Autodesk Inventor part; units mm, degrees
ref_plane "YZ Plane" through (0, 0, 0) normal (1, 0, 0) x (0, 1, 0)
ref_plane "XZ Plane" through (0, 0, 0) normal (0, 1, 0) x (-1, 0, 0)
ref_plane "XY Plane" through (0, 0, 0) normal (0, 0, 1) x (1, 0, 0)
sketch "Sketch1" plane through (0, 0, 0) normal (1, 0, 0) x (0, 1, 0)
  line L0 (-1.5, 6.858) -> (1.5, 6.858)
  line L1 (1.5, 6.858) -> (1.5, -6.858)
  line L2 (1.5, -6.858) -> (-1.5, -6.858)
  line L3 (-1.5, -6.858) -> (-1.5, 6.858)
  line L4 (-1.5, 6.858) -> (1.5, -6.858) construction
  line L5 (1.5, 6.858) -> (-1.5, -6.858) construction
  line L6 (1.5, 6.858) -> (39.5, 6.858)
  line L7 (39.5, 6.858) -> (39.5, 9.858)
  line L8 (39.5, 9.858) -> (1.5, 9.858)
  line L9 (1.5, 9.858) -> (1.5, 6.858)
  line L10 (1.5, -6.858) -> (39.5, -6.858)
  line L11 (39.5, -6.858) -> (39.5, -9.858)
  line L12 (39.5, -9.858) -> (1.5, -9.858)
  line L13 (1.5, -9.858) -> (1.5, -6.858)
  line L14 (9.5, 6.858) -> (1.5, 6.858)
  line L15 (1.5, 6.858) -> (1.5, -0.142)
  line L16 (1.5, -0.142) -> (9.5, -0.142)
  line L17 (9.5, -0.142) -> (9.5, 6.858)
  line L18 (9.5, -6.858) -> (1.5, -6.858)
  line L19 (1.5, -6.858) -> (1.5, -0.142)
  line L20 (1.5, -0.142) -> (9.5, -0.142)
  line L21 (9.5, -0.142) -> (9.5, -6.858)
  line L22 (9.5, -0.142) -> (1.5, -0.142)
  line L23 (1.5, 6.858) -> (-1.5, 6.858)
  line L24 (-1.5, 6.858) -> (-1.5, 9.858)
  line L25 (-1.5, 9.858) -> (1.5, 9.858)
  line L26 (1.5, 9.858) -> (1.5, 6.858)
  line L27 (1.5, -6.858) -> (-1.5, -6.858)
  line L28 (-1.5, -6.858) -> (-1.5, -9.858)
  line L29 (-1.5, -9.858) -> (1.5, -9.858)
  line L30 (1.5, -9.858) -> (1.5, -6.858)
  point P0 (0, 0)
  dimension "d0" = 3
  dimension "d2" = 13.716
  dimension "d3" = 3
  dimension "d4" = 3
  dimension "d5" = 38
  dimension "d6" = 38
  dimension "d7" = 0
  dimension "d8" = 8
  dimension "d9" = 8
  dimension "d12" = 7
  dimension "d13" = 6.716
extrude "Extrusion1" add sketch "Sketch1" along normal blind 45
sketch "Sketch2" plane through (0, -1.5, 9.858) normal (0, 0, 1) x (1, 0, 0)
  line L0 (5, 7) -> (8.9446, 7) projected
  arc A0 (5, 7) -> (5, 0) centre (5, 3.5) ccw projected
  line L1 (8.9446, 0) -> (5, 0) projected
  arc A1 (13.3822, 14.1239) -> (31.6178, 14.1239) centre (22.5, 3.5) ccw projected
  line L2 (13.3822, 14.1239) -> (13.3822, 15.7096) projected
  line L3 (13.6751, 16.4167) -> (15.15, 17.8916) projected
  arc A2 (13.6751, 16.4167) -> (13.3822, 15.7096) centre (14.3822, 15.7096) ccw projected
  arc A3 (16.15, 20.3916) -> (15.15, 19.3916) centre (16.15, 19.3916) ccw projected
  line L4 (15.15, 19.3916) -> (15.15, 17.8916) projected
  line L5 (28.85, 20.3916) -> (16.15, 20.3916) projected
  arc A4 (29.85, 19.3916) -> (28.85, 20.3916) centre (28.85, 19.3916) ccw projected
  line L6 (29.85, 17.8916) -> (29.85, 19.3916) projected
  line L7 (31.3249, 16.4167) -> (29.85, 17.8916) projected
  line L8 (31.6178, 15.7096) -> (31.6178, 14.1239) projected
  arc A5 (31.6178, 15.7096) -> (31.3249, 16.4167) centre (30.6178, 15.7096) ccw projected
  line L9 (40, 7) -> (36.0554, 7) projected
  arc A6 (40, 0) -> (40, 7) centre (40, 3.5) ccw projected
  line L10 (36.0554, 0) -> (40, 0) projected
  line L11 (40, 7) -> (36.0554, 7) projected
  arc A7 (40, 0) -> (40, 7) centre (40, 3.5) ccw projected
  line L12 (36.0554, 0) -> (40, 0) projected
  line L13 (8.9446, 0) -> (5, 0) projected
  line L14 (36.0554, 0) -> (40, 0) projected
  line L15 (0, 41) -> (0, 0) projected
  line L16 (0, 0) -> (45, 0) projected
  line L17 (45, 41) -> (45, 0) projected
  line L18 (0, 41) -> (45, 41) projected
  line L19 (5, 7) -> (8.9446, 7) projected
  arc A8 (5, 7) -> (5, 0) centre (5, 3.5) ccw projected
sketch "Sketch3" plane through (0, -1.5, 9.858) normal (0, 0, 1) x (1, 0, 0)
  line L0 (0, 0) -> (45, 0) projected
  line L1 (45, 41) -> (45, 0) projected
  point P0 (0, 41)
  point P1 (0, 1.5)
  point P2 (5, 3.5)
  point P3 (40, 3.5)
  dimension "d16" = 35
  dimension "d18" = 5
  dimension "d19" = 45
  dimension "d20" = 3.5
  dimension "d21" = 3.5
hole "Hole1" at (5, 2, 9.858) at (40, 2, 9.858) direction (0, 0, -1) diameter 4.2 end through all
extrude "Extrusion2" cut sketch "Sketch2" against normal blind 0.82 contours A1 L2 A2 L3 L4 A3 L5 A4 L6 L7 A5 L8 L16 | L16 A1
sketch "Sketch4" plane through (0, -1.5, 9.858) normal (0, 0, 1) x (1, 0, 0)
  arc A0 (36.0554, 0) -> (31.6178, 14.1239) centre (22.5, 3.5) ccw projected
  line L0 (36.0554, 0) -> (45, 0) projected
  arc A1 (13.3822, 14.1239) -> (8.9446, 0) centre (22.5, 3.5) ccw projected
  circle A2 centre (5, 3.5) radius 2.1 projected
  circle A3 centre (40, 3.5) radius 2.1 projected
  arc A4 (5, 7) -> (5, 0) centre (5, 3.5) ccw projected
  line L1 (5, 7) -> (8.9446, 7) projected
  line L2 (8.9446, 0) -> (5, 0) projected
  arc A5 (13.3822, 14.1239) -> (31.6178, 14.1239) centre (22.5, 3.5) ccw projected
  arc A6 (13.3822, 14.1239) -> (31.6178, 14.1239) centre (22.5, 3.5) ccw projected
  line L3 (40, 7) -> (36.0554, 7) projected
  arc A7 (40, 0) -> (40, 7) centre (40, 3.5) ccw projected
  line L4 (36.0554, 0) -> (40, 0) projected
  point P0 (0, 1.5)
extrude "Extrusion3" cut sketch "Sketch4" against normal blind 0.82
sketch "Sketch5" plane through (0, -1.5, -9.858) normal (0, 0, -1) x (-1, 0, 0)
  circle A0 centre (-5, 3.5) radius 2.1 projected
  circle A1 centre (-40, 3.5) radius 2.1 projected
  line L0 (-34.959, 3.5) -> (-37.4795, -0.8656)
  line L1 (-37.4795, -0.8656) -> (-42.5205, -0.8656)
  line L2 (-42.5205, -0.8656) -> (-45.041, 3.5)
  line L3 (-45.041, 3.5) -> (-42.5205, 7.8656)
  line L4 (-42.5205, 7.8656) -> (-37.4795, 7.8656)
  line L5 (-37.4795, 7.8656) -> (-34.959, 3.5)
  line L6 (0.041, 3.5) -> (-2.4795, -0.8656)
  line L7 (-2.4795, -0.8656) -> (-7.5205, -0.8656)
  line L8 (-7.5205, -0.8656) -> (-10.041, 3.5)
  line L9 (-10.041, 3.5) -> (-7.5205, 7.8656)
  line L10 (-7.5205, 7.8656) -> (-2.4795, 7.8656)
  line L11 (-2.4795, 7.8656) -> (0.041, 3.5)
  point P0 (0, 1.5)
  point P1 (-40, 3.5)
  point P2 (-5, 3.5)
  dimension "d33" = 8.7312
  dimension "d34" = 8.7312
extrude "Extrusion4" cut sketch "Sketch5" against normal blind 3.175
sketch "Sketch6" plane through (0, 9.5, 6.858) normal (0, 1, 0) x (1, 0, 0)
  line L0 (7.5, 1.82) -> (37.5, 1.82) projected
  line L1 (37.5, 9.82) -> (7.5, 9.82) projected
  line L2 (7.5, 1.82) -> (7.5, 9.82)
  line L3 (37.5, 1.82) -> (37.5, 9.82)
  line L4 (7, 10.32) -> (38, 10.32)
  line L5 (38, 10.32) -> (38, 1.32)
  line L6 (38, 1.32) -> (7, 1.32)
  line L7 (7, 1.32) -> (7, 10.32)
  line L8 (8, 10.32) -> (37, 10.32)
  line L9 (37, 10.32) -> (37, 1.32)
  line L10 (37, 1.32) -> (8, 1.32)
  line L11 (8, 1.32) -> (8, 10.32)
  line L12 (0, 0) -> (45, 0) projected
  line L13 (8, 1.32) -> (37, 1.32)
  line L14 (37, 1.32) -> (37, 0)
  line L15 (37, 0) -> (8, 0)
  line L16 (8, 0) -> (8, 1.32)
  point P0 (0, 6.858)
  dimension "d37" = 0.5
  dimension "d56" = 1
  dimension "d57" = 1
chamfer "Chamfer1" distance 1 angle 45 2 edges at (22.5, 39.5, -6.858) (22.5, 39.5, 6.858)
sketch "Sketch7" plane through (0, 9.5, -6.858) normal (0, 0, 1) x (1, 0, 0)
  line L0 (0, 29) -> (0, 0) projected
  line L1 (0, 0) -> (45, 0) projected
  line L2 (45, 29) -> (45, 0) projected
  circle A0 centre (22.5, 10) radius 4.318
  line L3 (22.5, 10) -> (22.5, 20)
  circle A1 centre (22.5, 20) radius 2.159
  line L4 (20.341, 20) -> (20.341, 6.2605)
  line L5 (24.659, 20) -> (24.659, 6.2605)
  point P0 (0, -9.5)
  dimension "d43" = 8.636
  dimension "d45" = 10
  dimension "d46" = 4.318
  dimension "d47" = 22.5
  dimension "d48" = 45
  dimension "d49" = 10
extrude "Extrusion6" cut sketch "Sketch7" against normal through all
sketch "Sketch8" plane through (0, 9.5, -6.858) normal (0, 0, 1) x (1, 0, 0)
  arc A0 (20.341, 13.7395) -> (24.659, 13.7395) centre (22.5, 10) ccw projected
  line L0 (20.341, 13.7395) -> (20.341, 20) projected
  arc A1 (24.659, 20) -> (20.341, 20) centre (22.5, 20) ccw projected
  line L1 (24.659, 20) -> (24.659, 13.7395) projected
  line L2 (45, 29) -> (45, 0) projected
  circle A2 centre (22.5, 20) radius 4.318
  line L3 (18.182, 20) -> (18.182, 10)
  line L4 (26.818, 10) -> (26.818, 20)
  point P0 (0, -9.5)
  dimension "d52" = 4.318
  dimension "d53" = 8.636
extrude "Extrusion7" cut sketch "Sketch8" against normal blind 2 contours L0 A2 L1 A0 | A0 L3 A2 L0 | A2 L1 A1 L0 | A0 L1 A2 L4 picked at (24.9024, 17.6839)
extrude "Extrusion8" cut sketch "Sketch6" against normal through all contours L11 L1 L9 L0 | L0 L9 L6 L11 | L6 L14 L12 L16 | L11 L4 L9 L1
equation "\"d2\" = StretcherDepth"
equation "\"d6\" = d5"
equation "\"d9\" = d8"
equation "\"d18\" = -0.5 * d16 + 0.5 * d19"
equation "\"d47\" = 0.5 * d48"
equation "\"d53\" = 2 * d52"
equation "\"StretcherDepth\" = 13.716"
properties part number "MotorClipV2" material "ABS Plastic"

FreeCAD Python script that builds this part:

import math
import FreeCAD as App
import Part
import Sketcher
from FreeCAD import Vector
Q = App.Units.Quantity


def edges_at(feature, points):
    """Names of the edges that pass closest to the given points."""
    edges = feature.Shape.Edges
    near = lambda p: min(range(len(edges)), key=lambda i: edges[i].distToShape(Part.Vertex(*p))[0])
    return sorted({f"Edge{near(p) + 1}" for p in points})


def add_polygon(sketch, points):
    """Adds a closed chain of lines whose ends are joined by coincident constraints."""
    first, n = sketch.GeometryCount, len(points)
    for a, b in zip(points, points[1:] + points[:1]):
        sketch.addGeometry(Part.LineSegment(App.Vector(*a, 0), App.Vector(*b, 0)), False)
    for i in range(n):
        sketch.addConstraint(Sketcher.Constraint("Coincident", first + i, 2, first + (i + 1) % n, 1))

doc = App.newDocument("Part")
body = doc.addObject("PartDesign::Body", "Body")

# Sketch on YZ plane
sketch1 = body.newObject("Sketcher::SketchObject", "Sketch")
sketch1.AttachmentSupport = (doc.getObject("YZ_Plane"), [""])
sketch1.MapMode = "FlatFace"
add_polygon(sketch1, [(-1.5, 9.858), (-1.5, -9.858), (39.5, -9.858), (39.5, -6.858), (9.5, -6.858), (9.5, 6.858), (39.5, 6.858), (39.5, 9.858)])  # lines 0-7
sketch1.addConstraint(Sketcher.Constraint("Vertical", 0))
sketch1.addConstraint(Sketcher.Constraint("Horizontal", 1))
sketch1.addConstraint(Sketcher.Constraint("Vertical", 2))
sketch1.addConstraint(Sketcher.Constraint("Horizontal", 3))
sketch1.addConstraint(Sketcher.Constraint("Vertical", 4))
sketch1.addConstraint(Sketcher.Constraint("Horizontal", 5))
sketch1.addConstraint(Sketcher.Constraint("Vertical", 6))
sketch1.addConstraint(Sketcher.Constraint("Horizontal", 7))
sketch1.addConstraint(Sketcher.Constraint("Symmetric", 2, 2, 5, 2, -1))
sketch1.addConstraint(Sketcher.Constraint("Equal", 2, 6))
sketch1.addConstraint(Sketcher.Constraint("DistanceY", 2, 1, 2, 2, 3.0))
sketch1.addConstraint(Sketcher.Constraint("DistanceX", 1, 1, 1, 2, 41.0))
sketch1.addConstraint(Sketcher.Constraint("DistanceX", 3, 2, 3, 1, 30.0))
sketch1.addConstraint(Sketcher.Constraint("DistanceY", 4, 1, 4, 2, 13.716))
sketch1.addConstraint(Sketcher.Constraint("DistanceX", 0, 2, -1, 1, 1.5))
pad1 = body.newObject("PartDesign::Pad", "Pad")
pad1.Profile = sketch1
pad1.Length = 45

# Sketch on XY plane
sketch2 = body.newObject("Sketcher::SketchObject", "Sketch001")
sketch2.AttachmentSupport = (doc.getObject("XY_Plane"), [""])
sketch2.MapMode = "FlatFace"
sketch2.AttachmentOffset = App.Placement(Vector(0, 0, 9.858), App.Rotation())
sketch2.addGeometry(Part.Circle(Vector(5, 2, 0), Vector(0, 0, 1), 2.1), False)
sketch2.addGeometry(Part.Circle(Vector(40, 2, 0), Vector(0, 0, 1), 2.1), False)
sketch2.addConstraint(Sketcher.Constraint("Equal", 0, 1))
sketch2.addConstraint(Sketcher.Constraint("Horizontal", 0, 3, 1, 3))
sketch2.addConstraint(Sketcher.Constraint("Diameter", 0, 4.2))
sketch2.addConstraint(Sketcher.Constraint("DistanceX", -1, 1, 0, 3, 5.0))
sketch2.addConstraint(Sketcher.Constraint("DistanceY", -1, 1, 0, 3, 2.0))
sketch2.addConstraint(Sketcher.Constraint("DistanceX", -1, 1, 1, 3, 40.0))
doc.recompute()
hole = body.newObject("PartDesign::Hole", "Hole")
hole.Profile = sketch2
hole.ThreadType = "None"
hole.Diameter = 4.2
hole.DepthType = "ThroughAll"

# Sketch on XY plane
sketch3 = body.newObject("Sketcher::SketchObject", "Sketch002")
sketch3.AttachmentSupport = (doc.getObject("XY_Plane"), [""])
sketch3.MapMode = "FlatFace"
sketch3.AttachmentOffset = App.Placement(Vector(0, 0, 9.858), App.Rotation())
sketch3.addGeometry(Part.ArcOfCircle(Part.Circle(Vector(22.5, 2, 0), Vector(0, 0, 1), 14.000055), math.radians(130.637339), math.radians(409.362661)), False)
sketch3.addGeometry(Part.LineSegment(Vector(31.6178, 12.6239, 0), Vector(31.6178, 14.2096, 0)), False)
sketch3.addGeometry(Part.ArcOfCircle(Part.Circle(Vector(30.6178, 14.2096, 0), Vector(0, 0, 1), 1), math.radians(0), math.radians(45)), False)
sketch3.addGeometry(Part.LineSegment(Vector(31.3249, 14.9167, 0), Vector(29.85, 16.3916, 0)), False)
sketch3.addGeometry(Part.LineSegment(Vector(29.85, 16.3916, 0), Vector(29.85, 17.8916, 0)), False)
sketch3.addGeometry(Part.ArcOfCircle(Part.Circle(Vector(28.85, 17.8916, 0), Vector(0, 0, 1), 1), math.radians(0), math.radians(90)), False)
sketch3.addGeometry(Part.LineSegment(Vector(28.85, 18.8916, 0), Vector(16.15, 18.8916, 0)), False)
sketch3.addGeometry(Part.ArcOfCircle(Part.Circle(Vector(16.15, 17.8916, 0), Vector(0, 0, 1), 1), math.radians(90), math.radians(180)), False)
sketch3.addGeometry(Part.LineSegment(Vector(15.15, 17.8916, 0), Vector(15.15, 16.3916, 0)), False)
sketch3.addGeometry(Part.LineSegment(Vector(15.15, 16.3916, 0), Vector(13.6751, 14.9167, 0)), False)
sketch3.addGeometry(Part.ArcOfCircle(Part.Circle(Vector(14.3822, 14.2096, 0), Vector(0, 0, 1), 0.99999), math.radians(135), math.radians(180)), False)
sketch3.addGeometry(Part.LineSegment(Vector(13.3822, 14.2096, 0), Vector(13.3822, 12.6239, 0)), False)
sketch3.addConstraint(Sketcher.Constraint("Coincident", 0, 2, 1, 1))
sketch3.addConstraint(Sketcher.Constraint("Tangent", 1, 2, 2, 1))
sketch3.addConstraint(Sketcher.Constraint("Tangent", 2, 2, 3, 1))
sketch3.addConstraint(Sketcher.Constraint("Coincident", 3, 2, 4, 1))
sketch3.addConstraint(Sketcher.Constraint("Tangent", 4, 2, 5, 1))
sketch3.addConstraint(Sketcher.Constraint("Tangent", 5, 2, 6, 1))
sketch3.addConstraint(Sketcher.Constraint("Tangent", 6, 2, 7, 1))
sketch3.addConstraint(Sketcher.Constraint("Tangent", 7, 2, 8, 1))
sketch3.addConstraint(Sketcher.Constraint("Coincident", 8, 2, 9, 1))
sketch3.addConstraint(Sketcher.Constraint("Tangent", 9, 2, 10, 1))
sketch3.addConstraint(Sketcher.Constraint("Tangent", 10, 2, 11, 1))
sketch3.addConstraint(Sketcher.Constraint("Coincident", 11, 2, 0, 1))
sketch3.addConstraint(Sketcher.Constraint("Vertical", 1))
sketch3.addConstraint(Sketcher.Constraint("Vertical", 4))
sketch3.addConstraint(Sketcher.Constraint("Horizontal", 6))
sketch3.addConstraint(Sketcher.Constraint("Vertical", 8))
sketch3.addConstraint(Sketcher.Constraint("Vertical", 11))
sketch3.addConstraint(Sketcher.Constraint("Equal", 2, 5))
sketch3.addConstraint(Sketcher.Constraint("Equal", 5, 7))
sketch3.addConstraint(Sketcher.Constraint("Equal", 7, 10))
sketch3.addConstraint(Sketcher.Constraint("Perpendicular", 3, 9))
sketch3.addConstraint(Sketcher.Constraint("Horizontal", 2, 3, 10, 3))
sketch3.addConstraint(Sketcher.Constraint("Horizontal", 3, 2, 8, 2))
sketch3.addConstraint(Sketcher.Constraint("Horizontal", 2, 2, 9, 2))
sketch3.addConstraint(Sketcher.Constraint("Horizontal", 0, 2, 11, 2))
sketch3.addConstraint(Sketcher.Constraint("Radius", 0, 14.0))
sketch3.addConstraint(Sketcher.Constraint("Radius", 2, 1.0))
sketch3.addConstraint(Sketcher.Constraint("DistanceX", 6, 2, 6, 1, 12.7))
sketch3.addConstraint(Sketcher.Constraint("DistanceY", 4, 1, 4, 2, 1.5))
sketch3.addConstraint(Sketcher.Constraint("DistanceY", -1, 1, 0, 3, 2.0))
sketch3.addConstraint(Sketcher.Constraint("DistanceX", -1, 1, 0, 3, 22.5))
sketch3.addConstraint(Sketcher.Constraint("DistanceY", 1, 1, 1, 2, 1.5857))
sketch3.addConstraint(Sketcher.Constraint("DistanceY", -1, 1, 0, 2, 12.624))
pocket1 = body.newObject("PartDesign::Pocket", "Pocket")
pocket1.Profile = sketch3
pocket1.Length = 0.82

# Sketch on XY plane
sketch4 = body.newObject("Sketcher::SketchObject", "Sketch003")
sketch4.AttachmentSupport = (doc.getObject("XY_Plane"), [""])
sketch4.MapMode = "FlatFace"
sketch4.AttachmentOffset = App.Placement(Vector(0, 0, 9.858), App.Rotation())
sketch4.addGeometry(Part.ArcOfCircle(Part.Circle(Vector(22.5, 2, 0), Vector(0, 0, 1), 14.000055), math.radians(-14.477555), math.radians(14.477555)), False)
sketch4.addGeometry(Part.LineSegment(Vector(36.0554, -1.5, 0), Vector(40, -1.5, 0)), False)
sketch4.addGeometry(Part.ArcOfCircle(Part.Circle(Vector(40, 2, 0), Vector(0, 0, 1), 3.5), math.radians(-90), math.radians(90)), False)
sketch4.addGeometry(Part.LineSegment(Vector(40, 5.5, 0), Vector(36.0554, 5.5, 0)), False)
sketch4.addGeometry(Part.Circle(Vector(40, 2, 0), Vector(0, 0, 1), 2.1), False)
sketch4.addGeometry(Part.LineSegment(Vector(5, -1.5, 0), Vector(8.9446, -1.5, 0)), False)
sketch4.addGeometry(Part.ArcOfCircle(Part.Circle(Vector(22.5, 2, 0), Vector(0, 0, 1), 13.99996), math.radians(165.522445), math.radians(194.477555)), False)
sketch4.addGeometry(Part.LineSegment(Vector(8.9446, 5.5, 0), Vector(5, 5.5, 0)), False)
sketch4.addGeometry(Part.ArcOfCircle(Part.Circle(Vector(5, 2, 0), Vector(0, 0, 1), 3.5), math.radians(90), math.radians(270)), False)
sketch4.addGeometry(Part.Circle(Vector(5, 2, 0), Vector(0, 0, 1), 2.1), False)
sketch4.addConstraint(Sketcher.Constraint("Coincident", 0, 1, 1, 1))
sketch4.addConstraint(Sketcher.Constraint("Tangent", 1, 2, 2, 1))
sketch4.addConstraint(Sketcher.Constraint("Tangent", 2, 2, 3, 1))
sketch4.addConstraint(Sketcher.Constraint("Coincident", 3, 2, 0, 2))
sketch4.addConstraint(Sketcher.Constraint("Coincident", 5, 2, 6, 2))
sketch4.addConstraint(Sketcher.Constraint("Coincident", 6, 1, 7, 1))
sketch4.addConstraint(Sketcher.Constraint("Tangent", 7, 2, 8, 1))
sketch4.addConstraint(Sketcher.Constraint("Tangent", 8, 2, 5, 1))
sketch4.addConstraint(Sketcher.Constraint("Horizontal", 1))
sketch4.addConstraint(Sketcher.Constraint("Horizontal", 3))
sketch4.addConstraint(Sketcher.Constraint("Horizontal", 5))
sketch4.addConstraint(Sketcher.Constraint("Horizontal", 7))
sketch4.addConstraint(Sketcher.Constraint("Coincident", 4, 3, 2, 3))
sketch4.addConstraint(Sketcher.Constraint("Coincident", 6, 3, 0, 3))
sketch4.addConstraint(Sketcher.Constraint("Coincident", 9, 3, 8, 3))
sketch4.addConstraint(Sketcher.Constraint("Equal", 0, 6))
sketch4.addConstraint(Sketcher.Constraint("Equal", 2, 8))
sketch4.addConstraint(Sketcher.Constraint("Equal", 4, 9))
sketch4.addConstraint(Sketcher.Constraint("Horizontal", 0, 3, 2, 3))
sketch4.addConstraint(Sketcher.Constraint("Horizontal", 6, 3, 8, 3))
sketch4.addConstraint(Sketcher.Constraint("Equal", 3, 5))
sketch4.addConstraint(Sketcher.Constraint("Radius", 0, 14.0))
sketch4.addConstraint(Sketcher.Constraint("Diameter", 4, 4.2))
sketch4.addConstraint(Sketcher.Constraint("Radius", 2, 3.5))
sketch4.addConstraint(Sketcher.Constraint("DistanceY", -1, 1, 0, 3, 2.0))
sketch4.addConstraint(Sketcher.Constraint("DistanceX", -1, 1, 2, 3, 40.0))
sketch4.addConstraint(Sketcher.Constraint("DistanceX", -1, 1, 8, 3, 5.0))
pocket2 = body.newObject("PartDesign::Pocket", "Pocket001")
pocket2.Profile = sketch4
pocket2.Length = 0.82

# Sketch on XY plane
sketch5 = body.newObject("Sketcher::SketchObject", "Sketch004")
sketch5.AttachmentSupport = (doc.getObject("XY_Plane"), [""])
sketch5.MapMode = "FlatFace"
sketch5.AttachmentOffset = App.Placement(Vector(0, 0, -9.858), App.Rotation())
add_polygon(sketch5, [(37.4795, -2.3656), (34.959, 2), (37.4795, 6.3656), (42.5205, 6.3656), (45.041, 2), (42.5205, -2.3656)])  # lines 0-5
sketch5.addGeometry(Part.Circle(Vector(40, 2, 0), Vector(0, 0, 1), 2.1), False)  # 6
add_polygon(sketch5, [(2.4795, -2.3656), (-0.041, 2), (2.4795, 6.3656), (7.5205, 6.3656), (10.041, 2), (7.5205, -2.3656)])  # lines 7-12
sketch5.addGeometry(Part.Circle(Vector(5, 2, 0), Vector(0, 0, 1), 2.1), False)  # 13
sketch5.addConstraint(Sketcher.Constraint("Horizontal", 2))
sketch5.addConstraint(Sketcher.Constraint("Horizontal", 5))
sketch5.addConstraint(Sketcher.Constraint("Horizontal", 9))
sketch5.addConstraint(Sketcher.Constraint("Horizontal", 12))
sketch5.addConstraint(Sketcher.Constraint("Equal", 6, 13))
sketch5.addConstraint(Sketcher.Constraint("Parallel", 0, 3))
sketch5.addConstraint(Sketcher.Constraint("Parallel", 1, 4))
sketch5.addConstraint(Sketcher.Constraint("Parallel", 3, 7))
sketch5.addConstraint(Sketcher.Constraint("Parallel", 4, 8))
sketch5.addConstraint(Sketcher.Constraint("Parallel", 7, 10))
sketch5.addConstraint(Sketcher.Constraint("Parallel", 8, 11))
sketch5.addConstraint(Sketcher.Constraint("Horizontal", 6, 3, 13, 3))
sketch5.addConstraint(Sketcher.Constraint("Horizontal", 13, 3, 0, 2))
sketch5.addConstraint(Sketcher.Constraint("Horizontal", 0, 2, 3, 2))
sketch5.addConstraint(Sketcher.Constraint("Horizontal", 3, 2, 7, 2))
sketch5.addConstraint(Sketcher.Constraint("Horizontal", 2, 2, 8, 2))
sketch5.addConstraint(Sketcher.Constraint("Horizontal", 7, 2, 10, 2))
sketch5.addConstraint(Sketcher.Constraint("Horizontal", 5, 2, 11, 2))
sketch5.addConstraint(Sketcher.Constraint("Vertical", 2, 2, 4, 2))
sketch5.addConstraint(Sketcher.Constraint("Vertical", 1, 2, 5, 2))
sketch5.addConstraint(Sketcher.Constraint("Equal", 5, 9))
sketch5.addConstraint(Sketcher.Constraint("Diameter", 6, 4.2))
sketch5.addConstraint(Sketcher.Constraint("Angle", 0, Q("120.0002 deg")))
sketch5.addConstraint(Sketcher.Constraint("DistanceX", -1, 1, 6, 3, 40.0))
sketch5.addConstraint(Sketcher.Constraint("DistanceY", -1, 1, 6, 3, 2.0))
sketch5.addConstraint(Sketcher.Constraint("DistanceX", -1, 1, 13, 3, 5.0))
sketch5.addConstraint(Sketcher.Constraint("DistanceX", 7, 2, 0, 2, 35.0))
sketch5.addConstraint(Sketcher.Constraint("DistanceY", 4, 2, 2, 2, 8.7312))
sketch5.addConstraint(Sketcher.Constraint("DistanceX", 2, 1, 2, 2, 5.041))
sketch5.addConstraint(Sketcher.Constraint("DistanceX", -1, 1, 0, 2, 34.959))
pocket3 = body.newObject("PartDesign::Pocket", "Pocket002")
pocket3.Profile = sketch5
pocket3.Length = 3.175
pocket3.Reversed = True
doc.recompute()

chamfer = body.newObject("PartDesign::Chamfer", "Chamfer")
chamfer.Base = (pocket3, edges_at(pocket3, [(22.5, 39.5, -6.858), (22.5, 39.5, 6.858)]))
chamfer.Size = 1

# Sketch on XY plane
sketch6 = body.newObject("Sketcher::SketchObject", "Sketch005")
sketch6.AttachmentSupport = (doc.getObject("XY_Plane"), [""])
sketch6.MapMode = "FlatFace"
sketch6.AttachmentOffset = App.Placement(Vector(0, 0, -6.858), App.Rotation())
sketch6.addGeometry(Part.LineSegment(Vector(24.659, 23.239498, 0), Vector(24.659, 29.5, 0)), False)
sketch6.addGeometry(Part.ArcOfCircle(Part.Circle(Vector(22.5, 29.5, 0), Vector(0, 0, 1), 2.159), math.radians(0), math.radians(180)), False)
sketch6.addGeometry(Part.LineSegment(Vector(20.341, 29.5, 0), Vector(20.341, 23.239498, 0)), False)
sketch6.addGeometry(Part.ArcOfCircle(Part.Circle(Vector(22.5, 19.5, 0), Vector(0, 0, 1), 4.318), math.radians(120), math.radians(420)), False)
sketch6.addConstraint(Sketcher.Constraint("Tangent", 0, 2, 1, 1))
sketch6.addConstraint(Sketcher.Constraint("Tangent", 1, 2, 2, 1))
sketch6.addConstraint(Sketcher.Constraint("Coincident", 2, 2, 3, 1))
sketch6.addConstraint(Sketcher.Constraint("Coincident", 3, 2, 0, 1))
sketch6.addConstraint(Sketcher.Constraint("Vertical", 0))
sketch6.addConstraint(Sketcher.Constraint("Vertical", 2))
sketch6.addConstraint(Sketcher.Constraint("Horizontal", 2, 2, 3, 2))
sketch6.addConstraint(Sketcher.Constraint("Radius", 1, 2.159))
sketch6.addConstraint(Sketcher.Constraint("Radius", 3, 4.318))
sketch6.addConstraint(Sketcher.Constraint("DistanceY", 3, 3, 1, 3, 10.0))
sketch6.addConstraint(Sketcher.Constraint("DistanceX", -1, 1, 1, 3, 22.5))
sketch6.addConstraint(Sketcher.Constraint("DistanceY", -1, 1, 1, 3, 29.5))
pocket4 = body.newObject("PartDesign::Pocket", "Pocket003")
pocket4.Profile = sketch6
pocket4.Type = "ThroughAll"

# Sketch on XY plane
sketch7 = body.newObject("Sketcher::SketchObject", "Sketch006")
sketch7.AttachmentSupport = (doc.getObject("XY_Plane"), [""])
sketch7.MapMode = "FlatFace"
sketch7.AttachmentOffset = App.Placement(Vector(0, 0, -6.858), App.Rotation())
sketch7.addGeometry(Part.ArcOfCircle(Part.Circle(Vector(22.5, 19.5, 0), Vector(0, 0, 1), 4.318002), math.radians(180), math.radians(360)), False)
sketch7.addGeometry(Part.LineSegment(Vector(26.818, 19.5, 0), Vector(26.818, 29.5, 0)), False)
sketch7.addGeometry(Part.ArcOfCircle(Part.Circle(Vector(22.5, 29.5, 0), Vector(0, 0, 1), 4.318), math.radians(0), math.radians(180)), False)
sketch7.addGeometry(Part.LineSegment(Vector(18.182, 29.5, 0), Vector(18.182, 19.5, 0)), False)
sketch7.addGeometry(Part.ArcOfCircle(Part.Circle(Vector(22.5, 29.5, 0), Vector(0, 0, 1), 4.318), math.radians(-120), math.radians(-60)), False)
sketch7.addGeometry(Part.LineSegment(Vector(20.341, 25.760502, 0), Vector(20.341, 29.5, 0)), False)
sketch7.addGeometry(Part.ArcOfCircle(Part.Circle(Vector(22.5, 29.5, 0), Vector(0, 0, 1), 2.159), math.radians(0), math.radians(180)), False)
sketch7.addGeometry(Part.LineSegment(Vector(24.659, 29.5, 0), Vector(24.659, 25.760502, 0)), False)
sketch7.addConstraint(Sketcher.Constraint("Tangent", 0, 2, 1, 1))
sketch7.addConstraint(Sketcher.Constraint("Tangent", 1, 2, 2, 1))
sketch7.addConstraint(Sketcher.Constraint("Tangent", 2, 2, 3, 1))
sketch7.addConstraint(Sketcher.Constraint("Tangent", 3, 2, 0, 1))
sketch7.addConstraint(Sketcher.Constraint("Coincident", 4, 1, 5, 1))
sketch7.addConstraint(Sketcher.Constraint("Tangent", 5, 2, 6, 2))
sketch7.addConstraint(Sketcher.Constraint("Tangent", 6, 1, 7, 1))
sketch7.addConstraint(Sketcher.Constraint("Coincident", 7, 2, 4, 2))
sketch7.addConstraint(Sketcher.Constraint("Vertical", 1))
sketch7.addConstraint(Sketcher.Constraint("Vertical", 3))
sketch7.addConstraint(Sketcher.Constraint("Vertical", 5))
sketch7.addConstraint(Sketcher.Constraint("Vertical", 7))
sketch7.addConstraint(Sketcher.Constraint("Coincident", 4, 3, 2, 3))
sketch7.addConstraint(Sketcher.Constraint("Coincident", 6, 3, 2, 3))
sketch7.addConstraint(Sketcher.Constraint("Equal", 2, 4))
sketch7.addConstraint(Sketcher.Constraint("Radius", 0, 4.318))
sketch7.addConstraint(Sketcher.Constraint("Radius", 6, 2.159))
sketch7.addConstraint(Sketcher.Constraint("DistanceY", 1, 1, 1, 2, 10.0))
sketch7.addConstraint(Sketcher.Constraint("DistanceX", -1, 1, 0, 3, 22.5))
sketch7.addConstraint(Sketcher.Constraint("DistanceY", -1, 1, 0, 3, 19.5))
pocket5 = body.newObject("PartDesign::Pocket", "Pocket004")
pocket5.Profile = sketch7
pocket5.Length = 2

# Sketch on XZ plane
sketch8 = body.newObject("Sketcher::SketchObject", "Sketch007")
sketch8.AttachmentSupport = (doc.getObject("XZ_Plane"), [""])
sketch8.MapMode = "FlatFace"
sketch8.AttachmentOffset = App.Placement(Vector(0, 0, -9.5), App.Rotation())
add_polygon(sketch8, [(8, 6.858), (37, 6.858), (37, -3.462), (8, -3.462)])  # lines 0-3
sketch8.addConstraint(Sketcher.Constraint("Horizontal", 0))
sketch8.addConstraint(Sketcher.Constraint("Vertical", 1))
sketch8.addConstraint(Sketcher.Constraint("Horizontal", 2))
sketch8.addConstraint(Sketcher.Constraint("Vertical", 3))
sketch8.addConstraint(Sketcher.Constraint("DistanceX", 0, 1, 0, 2, 29.0))
sketch8.addConstraint(Sketcher.Constraint("DistanceX", -1, 1, 0, 2, 37.0))
sketch8.addConstraint(Sketcher.Constraint("DistanceY", 1, 2, 1, 1, 10.32))
sketch8.addConstraint(Sketcher.Constraint("DistanceY", -1, 1, 0, 2, 6.858))
pocket6 = body.newObject("PartDesign::Pocket", "Pocket005")
pocket6.Profile = sketch8
pocket6.Type = "ThroughAll"
pocket6.Reversed = True

doc.recompute()
